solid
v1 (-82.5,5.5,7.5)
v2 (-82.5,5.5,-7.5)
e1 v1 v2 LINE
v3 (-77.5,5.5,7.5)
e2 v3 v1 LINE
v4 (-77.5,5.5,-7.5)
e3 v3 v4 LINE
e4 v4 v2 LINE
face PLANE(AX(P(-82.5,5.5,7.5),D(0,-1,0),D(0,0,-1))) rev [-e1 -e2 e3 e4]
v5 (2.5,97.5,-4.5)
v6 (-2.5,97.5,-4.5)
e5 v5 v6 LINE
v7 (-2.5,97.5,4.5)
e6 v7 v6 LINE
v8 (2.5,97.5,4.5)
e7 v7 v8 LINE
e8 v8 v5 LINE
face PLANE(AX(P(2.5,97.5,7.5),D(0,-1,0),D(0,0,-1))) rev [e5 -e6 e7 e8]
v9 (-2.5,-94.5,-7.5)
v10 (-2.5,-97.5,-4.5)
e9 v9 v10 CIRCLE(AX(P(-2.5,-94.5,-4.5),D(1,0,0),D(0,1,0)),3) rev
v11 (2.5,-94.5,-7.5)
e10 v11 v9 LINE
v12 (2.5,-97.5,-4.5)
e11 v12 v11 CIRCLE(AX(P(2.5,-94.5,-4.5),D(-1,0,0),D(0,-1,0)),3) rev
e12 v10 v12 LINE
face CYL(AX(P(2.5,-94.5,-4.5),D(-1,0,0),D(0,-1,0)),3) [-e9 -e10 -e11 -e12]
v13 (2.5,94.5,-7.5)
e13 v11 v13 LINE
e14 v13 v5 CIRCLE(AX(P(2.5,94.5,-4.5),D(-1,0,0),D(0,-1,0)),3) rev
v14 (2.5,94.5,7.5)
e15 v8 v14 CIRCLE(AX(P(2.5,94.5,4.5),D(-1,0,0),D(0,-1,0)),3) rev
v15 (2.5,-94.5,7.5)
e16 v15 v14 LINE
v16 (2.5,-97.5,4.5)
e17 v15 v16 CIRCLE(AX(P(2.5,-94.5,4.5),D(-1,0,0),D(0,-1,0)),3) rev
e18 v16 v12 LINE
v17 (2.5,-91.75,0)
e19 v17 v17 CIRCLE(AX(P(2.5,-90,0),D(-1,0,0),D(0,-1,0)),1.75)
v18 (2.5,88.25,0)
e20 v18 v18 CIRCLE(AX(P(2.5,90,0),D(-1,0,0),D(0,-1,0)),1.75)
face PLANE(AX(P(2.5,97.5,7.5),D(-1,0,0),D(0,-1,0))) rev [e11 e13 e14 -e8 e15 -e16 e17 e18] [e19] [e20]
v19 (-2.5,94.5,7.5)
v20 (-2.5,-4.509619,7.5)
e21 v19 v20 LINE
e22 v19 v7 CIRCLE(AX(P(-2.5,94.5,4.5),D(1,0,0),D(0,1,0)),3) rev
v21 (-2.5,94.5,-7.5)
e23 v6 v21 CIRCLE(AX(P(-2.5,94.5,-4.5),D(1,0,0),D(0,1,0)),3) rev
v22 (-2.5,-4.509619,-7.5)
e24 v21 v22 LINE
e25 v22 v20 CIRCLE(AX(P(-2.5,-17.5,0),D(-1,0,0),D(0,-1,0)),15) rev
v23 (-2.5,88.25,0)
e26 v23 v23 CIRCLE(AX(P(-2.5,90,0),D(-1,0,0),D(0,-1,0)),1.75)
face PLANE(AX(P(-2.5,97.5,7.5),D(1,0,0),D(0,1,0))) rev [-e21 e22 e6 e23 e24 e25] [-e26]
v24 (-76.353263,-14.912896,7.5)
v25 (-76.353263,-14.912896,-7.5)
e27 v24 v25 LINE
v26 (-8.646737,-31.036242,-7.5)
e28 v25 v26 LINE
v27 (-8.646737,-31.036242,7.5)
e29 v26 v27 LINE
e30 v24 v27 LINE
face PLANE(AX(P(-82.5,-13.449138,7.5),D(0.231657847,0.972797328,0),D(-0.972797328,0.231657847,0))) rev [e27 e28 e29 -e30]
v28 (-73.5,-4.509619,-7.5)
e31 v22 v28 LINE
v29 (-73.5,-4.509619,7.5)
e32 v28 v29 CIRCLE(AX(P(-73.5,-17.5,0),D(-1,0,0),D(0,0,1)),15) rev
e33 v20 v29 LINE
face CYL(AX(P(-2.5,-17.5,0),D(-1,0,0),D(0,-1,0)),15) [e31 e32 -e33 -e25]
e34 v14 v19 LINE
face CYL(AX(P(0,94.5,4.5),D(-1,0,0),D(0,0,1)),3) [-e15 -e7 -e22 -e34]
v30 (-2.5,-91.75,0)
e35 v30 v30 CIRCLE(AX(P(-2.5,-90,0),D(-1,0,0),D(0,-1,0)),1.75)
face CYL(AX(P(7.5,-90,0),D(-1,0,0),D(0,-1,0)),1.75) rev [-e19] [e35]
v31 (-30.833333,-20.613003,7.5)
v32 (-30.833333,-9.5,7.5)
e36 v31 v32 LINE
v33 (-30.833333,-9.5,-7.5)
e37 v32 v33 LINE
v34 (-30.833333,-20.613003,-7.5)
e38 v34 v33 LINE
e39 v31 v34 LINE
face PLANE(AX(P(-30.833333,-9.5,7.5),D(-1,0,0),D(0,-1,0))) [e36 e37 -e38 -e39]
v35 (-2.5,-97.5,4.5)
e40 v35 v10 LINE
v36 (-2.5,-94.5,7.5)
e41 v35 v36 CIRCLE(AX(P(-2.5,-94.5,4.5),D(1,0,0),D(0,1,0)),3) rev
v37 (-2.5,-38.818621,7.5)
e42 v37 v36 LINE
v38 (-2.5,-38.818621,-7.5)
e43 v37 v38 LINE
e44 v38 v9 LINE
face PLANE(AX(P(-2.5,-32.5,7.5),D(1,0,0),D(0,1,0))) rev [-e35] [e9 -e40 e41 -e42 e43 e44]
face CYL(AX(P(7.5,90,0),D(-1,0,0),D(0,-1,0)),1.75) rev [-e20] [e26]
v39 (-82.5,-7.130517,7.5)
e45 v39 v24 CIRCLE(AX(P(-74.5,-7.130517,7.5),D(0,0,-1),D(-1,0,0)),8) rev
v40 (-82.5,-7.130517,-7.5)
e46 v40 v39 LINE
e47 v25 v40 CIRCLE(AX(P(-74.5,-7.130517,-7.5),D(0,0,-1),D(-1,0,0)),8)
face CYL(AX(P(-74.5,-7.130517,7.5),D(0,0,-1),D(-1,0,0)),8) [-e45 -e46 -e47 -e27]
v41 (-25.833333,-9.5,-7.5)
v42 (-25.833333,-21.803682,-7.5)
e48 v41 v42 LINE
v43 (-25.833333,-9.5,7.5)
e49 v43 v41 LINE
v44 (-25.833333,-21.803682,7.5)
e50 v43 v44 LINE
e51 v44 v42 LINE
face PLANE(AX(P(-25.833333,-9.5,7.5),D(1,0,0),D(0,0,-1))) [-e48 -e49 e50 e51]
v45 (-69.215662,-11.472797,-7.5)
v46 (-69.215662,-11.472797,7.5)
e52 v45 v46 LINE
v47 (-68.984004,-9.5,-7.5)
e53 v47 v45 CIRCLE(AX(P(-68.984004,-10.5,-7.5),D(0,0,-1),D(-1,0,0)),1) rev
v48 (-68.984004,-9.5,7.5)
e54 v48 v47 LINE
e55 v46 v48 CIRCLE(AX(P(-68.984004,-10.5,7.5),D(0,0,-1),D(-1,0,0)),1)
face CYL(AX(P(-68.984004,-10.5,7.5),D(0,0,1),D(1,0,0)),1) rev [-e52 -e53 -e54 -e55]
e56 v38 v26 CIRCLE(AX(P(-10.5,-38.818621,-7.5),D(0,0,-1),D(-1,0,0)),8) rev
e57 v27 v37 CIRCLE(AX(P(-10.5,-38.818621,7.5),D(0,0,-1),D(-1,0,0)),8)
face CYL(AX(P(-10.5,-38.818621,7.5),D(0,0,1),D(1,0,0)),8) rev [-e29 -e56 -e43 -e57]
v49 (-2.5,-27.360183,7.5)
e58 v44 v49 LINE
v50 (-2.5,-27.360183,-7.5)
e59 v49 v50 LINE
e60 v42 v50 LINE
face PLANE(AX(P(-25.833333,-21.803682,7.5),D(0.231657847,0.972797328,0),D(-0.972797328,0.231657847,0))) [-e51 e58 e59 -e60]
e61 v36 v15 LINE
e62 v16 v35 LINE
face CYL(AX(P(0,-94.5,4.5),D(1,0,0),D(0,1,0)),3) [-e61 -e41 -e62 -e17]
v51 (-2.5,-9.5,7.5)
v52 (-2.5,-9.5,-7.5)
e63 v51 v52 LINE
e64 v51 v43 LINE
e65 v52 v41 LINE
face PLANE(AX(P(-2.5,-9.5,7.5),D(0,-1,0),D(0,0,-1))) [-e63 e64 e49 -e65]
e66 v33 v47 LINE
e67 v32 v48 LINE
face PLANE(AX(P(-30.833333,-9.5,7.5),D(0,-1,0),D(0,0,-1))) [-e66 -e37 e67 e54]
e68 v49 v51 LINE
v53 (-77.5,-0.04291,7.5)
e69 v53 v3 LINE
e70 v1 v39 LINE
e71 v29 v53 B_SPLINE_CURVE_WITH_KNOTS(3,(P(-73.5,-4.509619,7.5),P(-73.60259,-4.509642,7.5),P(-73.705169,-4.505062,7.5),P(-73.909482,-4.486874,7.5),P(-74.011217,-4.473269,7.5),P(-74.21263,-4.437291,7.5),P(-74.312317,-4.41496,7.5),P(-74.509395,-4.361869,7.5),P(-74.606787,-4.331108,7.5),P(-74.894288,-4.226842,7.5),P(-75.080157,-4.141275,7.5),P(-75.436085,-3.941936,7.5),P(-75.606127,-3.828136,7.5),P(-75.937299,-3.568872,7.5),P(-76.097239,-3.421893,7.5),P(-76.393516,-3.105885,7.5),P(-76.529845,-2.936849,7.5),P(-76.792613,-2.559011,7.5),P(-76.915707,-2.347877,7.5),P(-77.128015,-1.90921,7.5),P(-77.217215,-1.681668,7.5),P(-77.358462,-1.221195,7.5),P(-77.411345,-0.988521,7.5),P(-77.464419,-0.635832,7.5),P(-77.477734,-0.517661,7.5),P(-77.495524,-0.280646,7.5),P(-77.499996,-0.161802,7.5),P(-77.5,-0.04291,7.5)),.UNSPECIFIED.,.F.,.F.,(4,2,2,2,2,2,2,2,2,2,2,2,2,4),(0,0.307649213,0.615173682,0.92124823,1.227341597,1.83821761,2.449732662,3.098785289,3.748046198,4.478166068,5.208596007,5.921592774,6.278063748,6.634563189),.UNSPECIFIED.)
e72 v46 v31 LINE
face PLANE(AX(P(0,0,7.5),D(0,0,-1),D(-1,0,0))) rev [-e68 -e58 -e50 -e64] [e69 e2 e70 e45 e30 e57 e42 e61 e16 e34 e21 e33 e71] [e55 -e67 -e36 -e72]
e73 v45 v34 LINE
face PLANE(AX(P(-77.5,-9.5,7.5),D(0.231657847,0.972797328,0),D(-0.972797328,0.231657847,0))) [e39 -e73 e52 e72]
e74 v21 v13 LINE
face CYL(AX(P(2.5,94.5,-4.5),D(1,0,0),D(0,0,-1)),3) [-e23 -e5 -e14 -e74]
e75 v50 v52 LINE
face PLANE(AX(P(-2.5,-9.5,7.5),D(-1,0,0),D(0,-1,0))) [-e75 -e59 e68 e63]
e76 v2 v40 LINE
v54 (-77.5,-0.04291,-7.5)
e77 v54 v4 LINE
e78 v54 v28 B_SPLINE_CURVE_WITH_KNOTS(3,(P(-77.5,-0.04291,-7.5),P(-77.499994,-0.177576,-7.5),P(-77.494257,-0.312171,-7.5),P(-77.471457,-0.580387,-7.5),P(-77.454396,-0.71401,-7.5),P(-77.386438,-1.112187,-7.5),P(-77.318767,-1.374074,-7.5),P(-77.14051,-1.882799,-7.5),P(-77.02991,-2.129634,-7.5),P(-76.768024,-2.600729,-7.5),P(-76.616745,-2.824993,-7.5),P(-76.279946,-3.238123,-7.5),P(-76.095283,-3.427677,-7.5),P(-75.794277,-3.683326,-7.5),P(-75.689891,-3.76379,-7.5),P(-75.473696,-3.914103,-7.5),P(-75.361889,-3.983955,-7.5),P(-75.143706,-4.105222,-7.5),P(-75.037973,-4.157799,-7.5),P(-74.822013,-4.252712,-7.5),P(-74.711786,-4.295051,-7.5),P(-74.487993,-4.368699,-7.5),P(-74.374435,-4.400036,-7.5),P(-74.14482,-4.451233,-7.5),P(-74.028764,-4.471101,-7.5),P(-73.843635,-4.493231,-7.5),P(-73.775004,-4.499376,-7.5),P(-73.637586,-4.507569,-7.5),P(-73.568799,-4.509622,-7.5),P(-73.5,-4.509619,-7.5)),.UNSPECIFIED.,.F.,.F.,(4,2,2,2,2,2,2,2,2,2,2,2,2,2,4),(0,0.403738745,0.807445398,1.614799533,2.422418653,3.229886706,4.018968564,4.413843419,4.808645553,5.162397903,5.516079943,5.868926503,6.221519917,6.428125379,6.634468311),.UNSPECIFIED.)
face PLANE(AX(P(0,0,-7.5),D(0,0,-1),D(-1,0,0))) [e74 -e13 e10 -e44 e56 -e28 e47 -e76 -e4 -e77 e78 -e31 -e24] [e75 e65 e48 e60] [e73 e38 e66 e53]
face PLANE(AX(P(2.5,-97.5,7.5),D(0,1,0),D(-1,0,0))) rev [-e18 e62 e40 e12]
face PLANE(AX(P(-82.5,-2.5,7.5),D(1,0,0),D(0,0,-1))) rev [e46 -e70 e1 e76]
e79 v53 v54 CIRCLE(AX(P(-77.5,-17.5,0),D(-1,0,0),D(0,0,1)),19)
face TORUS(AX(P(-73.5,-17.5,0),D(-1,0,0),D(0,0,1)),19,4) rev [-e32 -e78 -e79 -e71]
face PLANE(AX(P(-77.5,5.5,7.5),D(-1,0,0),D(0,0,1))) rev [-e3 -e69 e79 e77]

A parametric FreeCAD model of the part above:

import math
import FreeCAD as App
import Part
import Sketcher
from FreeCAD import Vector
Q = App.Units.Quantity


def edges_at(feature, points):
    """Names of the edges that pass closest to the given points."""
    edges = feature.Shape.Edges
    near = lambda p: min(range(len(edges)), key=lambda i: edges[i].distToShape(Part.Vertex(*p))[0])
    return sorted({f"Edge{near(p) + 1}" for p in points})


def add_polygon(sketch, points):
    """Adds a closed chain of lines whose ends are joined by coincident constraints."""
    first, n = sketch.GeometryCount, len(points)
    for a, b in zip(points, points[1:] + points[:1]):
        sketch.addGeometry(Part.LineSegment(App.Vector(*a, 0), App.Vector(*b, 0)), False)
    for i in range(n):
        sketch.addConstraint(Sketcher.Constraint("Coincident", first + i, 2, first + (i + 1) % n, 1))

doc = App.newDocument("Part")
body = doc.addObject("PartDesign::Body", "Body")

sketch1 = doc.addObject("Sketcher::SketchObject", "Sketch")
body.addObject(sketch1)
sketch1.AttachmentSupport = (doc.XY_Plane, [""])
sketch1.MapMode = "FlatFace"
add_polygon(sketch1, [(-2, -2), (-78, -2), (-78, 6), (-82, 6), (-82, -13), (-2, -32), (-2, -98), (2, -98), (2, 98), (-2, 98)])
add_polygon(sketch1, [(-31, -21), (-78, -10), (-31, -10)])
add_polygon(sketch1, [(-26, -10), (-2, -10), (-2, -27), (-26, -22)])
sketch1.addConstraint([
    Sketcher.Constraint("Horizontal", 0),
    Sketcher.Constraint("Vertical", 1),
    Sketcher.Constraint("Horizontal", 2),
    Sketcher.Constraint("Vertical", 3),
    Sketcher.Constraint("Vertical", 5),
    Sketcher.Constraint("Horizontal", 6),
    Sketcher.Constraint("Vertical", 7),
    Sketcher.Constraint("Horizontal", 8),
    Sketcher.Constraint("Vertical", 9),
    Sketcher.Constraint("Horizontal", 11),
    Sketcher.Constraint("Vertical", 12),
    Sketcher.Constraint("Horizontal", 13),
    Sketcher.Constraint("Vertical", 14),
    Sketcher.Constraint("Vertical", 16),
    Sketcher.Constraint("Symmetric", 5, 2, 7, 2, -1, 1),
    Sketcher.Constraint("Parallel", 4, 10),
    Sketcher.Constraint("Parallel", 10, 15),
    Sketcher.Constraint("Horizontal", 11, 2, 13, 2),
    Sketcher.Constraint("Vertical", 5, 2, 8, 2),
    Sketcher.Constraint("Vertical", 1, 2, 10, 2),
    Sketcher.Constraint("Vertical", 9, 2, 13, 2),
    Sketcher.Constraint("Equal", 2, 6),
    Sketcher.Constraint("DistanceX", 0, 2, 0, 1, Q("75 mm")),
    Sketcher.Constraint("DistanceX", 2, 2, 2, 1, Q("5 mm")),
    Sketcher.Constraint("DistanceY", 1, 1, 1, 2, Q("8 mm")),
    Sketcher.Constraint("DistanceY", 5, 2, 5, 1, Q("65 mm")),
    Sketcher.Constraint("DistanceY", 7, 1, 7, 2, Q("195 mm")),
    Sketcher.Constraint("DistanceY", 9, 2, 9, 1, Q("100 mm")),
    Sketcher.Constraint("DistanceY", 10, 2, 0, 2, Q("7 mm")),
    Sketcher.Constraint("DistanceX", 12, 2, 15, 2, Q("5 mm")),
    Sketcher.Constraint("DistanceY", 16, 1, 16, 2, Q("12.303682 mm")),
    Sketcher.Constraint("DistanceY", 14, 2, 15, 2, Q("5.556501 mm")),
    Sketcher.Constraint("Distance", 15, Q("23.985811 mm")),
])
pad1 = doc.addObject("PartDesign::Pad", "Pad")
body.addObject(pad1)
pad1.Profile = sketch1
pad1.Length = 15
pad1.Midplane = True

sketch2 = doc.addObject("Sketcher::SketchObject", "Sketch001")
body.addObject(sketch2)
sketch2.AttachmentSupport = (doc.YZ_Plane, [""])
sketch2.MapMode = "FlatFace"
sketch2.AttachmentOffset = App.Placement(Vector(0, 0, -2.5), App.Rotation())
sketch2.addGeometry([
    Part.Circle(Vector(90, 0, 0), Vector(0, 0, 1), 1.8),
    Part.Circle(Vector(-90, 0, 0), Vector(0, 0, 1), 1.8),
], False)
sketch2.addConstraint([
    Sketcher.Constraint("Equal", 0, 1),
    Sketcher.Constraint("Symmetric", 0, 3, 1, 3, -1, 1),
    Sketcher.Constraint("PointOnObject", 0, 3, -1),
    Sketcher.Constraint("Diameter", 0, Q("3.5 mm")),
    Sketcher.Constraint("DistanceX", -1, 1, 0, 3, Q("90 mm")),
])
pocket1 = doc.addObject("PartDesign::Pocket", "Pocket")
body.addObject(pocket1)
pocket1.Profile = sketch2
pocket1.Length = 10
pocket1.Reversed = True
doc.recompute()

fillet = doc.addObject("PartDesign::Fillet", "Fillet")
body.addObject(fillet)
fillet.Base = (pocket1, edges_at(pocket1, [(-77.5, -9.5, 0)]))
fillet.Radius = 1

sketch3 = doc.addObject("Sketcher::SketchObject", "Sketch002")
body.addObject(sketch3)
sketch3.AttachmentSupport = (doc.YZ_Plane, [""])
sketch3.MapMode = "FlatFace"
sketch3.AttachmentOffset = App.Placement(Vector(0, 0, -77.5), App.Rotation())
sketch3.addGeometry([
    Part.LineSegment(Vector(-4.5, 7.5, 0), Vector(-2.5, 7.5, 0)),
    Part.LineSegment(Vector(-2.5, 7.5, 0), Vector(-2.5, 0, 0)),
    Part.ArcOfCircle(Part.Circle(Vector(-17.5, 0, 0), Vector(0, 0, 1), 15), math.radians(0), math.radians(30)),
    Part.ArcOfCircle(Part.Circle(Vector(-17.5, 0, 0), Vector(0, 0, 1), 15), math.radians(-30), math.radians(0)),
    Part.LineSegment(Vector(-2.5, 0, 0), Vector(-2.5, -7.5, 0)),
    Part.LineSegment(Vector(-2.5, -7.5, 0), Vector(-4.5, -7.5, 0)),
], False)
sketch3.addConstraint([
    Sketcher.Constraint("Coincident", 0, 2, 1, 1),
    Sketcher.Constraint("Tangent", 1, 2, 2, 1),
    Sketcher.Constraint("Coincident", 2, 2, 0, 1),
    Sketcher.Constraint("Tangent", 3, 2, 4, 1),
    Sketcher.Constraint("Coincident", 4, 2, 5, 1),
    Sketcher.Constraint("Coincident", 5, 2, 3, 1),
    Sketcher.Constraint("Horizontal", 0),
    Sketcher.Constraint("Vertical", 1),
    Sketcher.Constraint("Vertical", 4),
    Sketcher.Constraint("Horizontal", 5),
    Sketcher.Constraint("Coincident", 3, 3, 2, 3),
    Sketcher.Constraint("Equal", 2, 3),
    Sketcher.Constraint("Symmetric", 2, 2, 5, 2, -1),
    Sketcher.Constraint("Radius", 2, Q("15 mm")),
    Sketcher.Constraint("DistanceY", 1, 2, 1, 1, Q("7.5 mm")),
    Sketcher.Constraint("DistanceX", 2, 3, -1, 1, Q("17.5 mm")),
])
pocket2 = doc.addObject("PartDesign::Pocket", "Pocket001")
body.addObject(pocket2)
pocket2.Profile = sketch3
pocket2.Length = 75
pocket2.Reversed = True
doc.recompute()

fillet2 = doc.addObject("PartDesign::Fillet", "Fillet001")
body.addObject(fillet2)
fillet2.Base = (pocket2, edges_at(pocket2, [
    (0, 97.5, -7.5),
    (0, -97.5, -7.5),
    (0, 97.5, 7.5),
    (0, -97.5, 7.5),
]))
fillet2.Radius = 3
doc.recompute()

fillet3 = doc.addObject("PartDesign::Fillet", "Fillet002")
body.addObject(fillet3)
fillet3.Base = (fillet2, edges_at(fillet2, [(-2.5, -32.5, 0), (-82.5, -13.449, 0)]))
fillet3.Radius = 8
doc.recompute()

fillet4 = doc.addObject("PartDesign::Fillet", "Fillet003")
body.addObject(fillet4)
fillet4.Base = (fillet3, edges_at(fillet3, [(-77.5, -2.5, 0)]))
fillet4.Radius = 4

doc.recompute()
